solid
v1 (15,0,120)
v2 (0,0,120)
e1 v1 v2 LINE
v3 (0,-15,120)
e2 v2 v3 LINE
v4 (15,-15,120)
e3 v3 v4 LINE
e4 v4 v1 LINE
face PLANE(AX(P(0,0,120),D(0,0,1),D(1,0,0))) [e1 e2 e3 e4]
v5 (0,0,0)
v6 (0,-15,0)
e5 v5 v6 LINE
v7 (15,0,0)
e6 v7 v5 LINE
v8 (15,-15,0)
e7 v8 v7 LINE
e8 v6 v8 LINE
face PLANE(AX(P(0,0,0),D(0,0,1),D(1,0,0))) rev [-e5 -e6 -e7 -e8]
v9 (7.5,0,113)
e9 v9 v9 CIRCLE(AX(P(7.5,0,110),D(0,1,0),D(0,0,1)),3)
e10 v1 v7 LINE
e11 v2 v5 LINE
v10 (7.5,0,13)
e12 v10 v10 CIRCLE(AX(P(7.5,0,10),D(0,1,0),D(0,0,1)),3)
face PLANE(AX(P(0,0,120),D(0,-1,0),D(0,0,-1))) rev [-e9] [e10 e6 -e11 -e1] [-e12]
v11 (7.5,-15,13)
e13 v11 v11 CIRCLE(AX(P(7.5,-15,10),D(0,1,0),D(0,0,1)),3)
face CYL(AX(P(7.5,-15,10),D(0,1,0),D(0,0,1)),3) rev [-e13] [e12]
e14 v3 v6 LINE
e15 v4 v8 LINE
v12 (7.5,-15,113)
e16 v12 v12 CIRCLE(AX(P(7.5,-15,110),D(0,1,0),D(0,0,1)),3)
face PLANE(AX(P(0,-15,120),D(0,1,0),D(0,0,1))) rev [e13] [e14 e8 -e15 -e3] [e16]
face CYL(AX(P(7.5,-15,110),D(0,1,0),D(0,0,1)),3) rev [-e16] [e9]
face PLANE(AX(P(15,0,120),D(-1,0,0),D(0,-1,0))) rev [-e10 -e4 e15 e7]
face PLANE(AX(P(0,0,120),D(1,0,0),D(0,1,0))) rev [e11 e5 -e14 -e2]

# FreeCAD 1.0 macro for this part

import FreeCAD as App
import Part
import Sketcher


def add_polygon(sketch, points):
    """Adds a closed chain of lines whose ends are joined by coincident constraints."""
    first, n = sketch.GeometryCount, len(points)
    for a, b in zip(points, points[1:] + points[:1]):
        sketch.addGeometry(Part.LineSegment(App.Vector(*a, 0), App.Vector(*b, 0)), False)
    for i in range(n):
        sketch.addConstraint(Sketcher.Constraint("Coincident", first + i, 2, first + (i + 1) % n, 1))

doc = App.newDocument("Part")
body = doc.addObject("PartDesign::Body", "Body")

sketch1 = doc.addObject("Sketcher::SketchObject", "Sketch")
body.addObject(sketch1)
sketch1.AttachmentSupport = (doc.XY_Plane, [""])
sketch1.MapMode = "FlatFace"
add_polygon(sketch1, [(0, 0), (0, -15), (15, -15), (15, 0)])
sketch1.addConstraint([
    Sketcher.Constraint("Vertical", 0),
    Sketcher.Constraint("Horizontal", 1),
    Sketcher.Constraint("Vertical", 2),
    Sketcher.Constraint("Horizontal", 3),
    Sketcher.Constraint("Coincident", 3, 2, -1, 1),
    Sketcher.Constraint("Equal", 3, 0),
    Sketcher.Constraint("DistanceX", 1, 1, 1, 2, 15.0),
])
pad1 = doc.addObject("PartDesign::Pad", "Pad")
body.addObject(pad1)
pad1.Profile = sketch1
pad1.Length = 120

sketch2 = doc.addObject("Sketcher::SketchObject", "Sketch001")
body.addObject(sketch2)
sketch2.AttachmentSupport = (doc.XZ_Plane, [""])
sketch2.MapMode = "FlatFace"
sketch2.addGeometry([
    Part.Circle(App.Vector(7.5, 10, 0), App.Vector(0, 0, 1), 3),
    Part.Circle(App.Vector(7.5, 110, 0), App.Vector(0, 0, 1), 3),
], False)
sketch2.addConstraint([
    Sketcher.Constraint("Equal", 0, 1),
    Sketcher.Constraint("Vertical", 0, 3, 1, 3),
    Sketcher.Constraint("Diameter", 0, 6.0),
    Sketcher.Constraint("DistanceY", -1, 1, 0, 3, 10.0),
    Sketcher.Constraint("DistanceY", -1, 1, 1, 3, 110.0),
    Sketcher.Constraint("DistanceX", -1, 1, 0, 3, 7.5),
])
pocket1 = doc.addObject("PartDesign::Pocket", "Pocket")
body.addObject(pocket1)
pocket1.Profile = sketch2
pocket1.Type = "ThroughAll"
pocket1.Reversed = True

doc.recompute()
